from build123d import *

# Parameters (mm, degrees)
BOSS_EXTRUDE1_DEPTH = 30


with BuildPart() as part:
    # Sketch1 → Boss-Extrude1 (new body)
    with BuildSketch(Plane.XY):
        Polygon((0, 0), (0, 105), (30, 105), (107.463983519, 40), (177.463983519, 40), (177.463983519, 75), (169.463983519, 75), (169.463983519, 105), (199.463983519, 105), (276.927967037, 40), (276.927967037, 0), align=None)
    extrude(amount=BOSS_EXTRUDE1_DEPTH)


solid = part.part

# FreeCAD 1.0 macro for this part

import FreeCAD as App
import Part
import Sketcher
Q = App.Units.Quantity

doc = App.newDocument("Part")
params = doc.addObject("Spreadsheet::Sheet", "Params")
for row, (alias, value) in enumerate([
    ("sketch1_width", "30 mm"),
    ("sketch1_width2", "8 mm"),
    ("sketch1_width3", "70 mm"),
    ("sketch1_height", "105 mm"),
    ("sketch1_height2", "40 mm"),
    ("pad1_length", "30 mm"),
], start=1):
    params.set(f"A{row}", alias)
    params.set(f"B{row}", "=" + value)
    params.setAlias(f"B{row}", alias)

body = doc.addObject("PartDesign::Body", "Body")

# Sketch on XY plane
sketch1 = body.newObject("Sketcher::SketchObject", "Sketch")
sketch1.AttachmentSupport = (doc.getObject("XY_Plane"), [""])
sketch1.MapMode = "FlatFace"
sketch1.addGeometry([
    Part.LineSegment(App.Vector(0, 105, 0), App.Vector(0, 0, 0)),  # 0
    Part.LineSegment(App.Vector(0, 0, 0), App.Vector(277, 0, 0)),  # 1
    Part.LineSegment(App.Vector(277, 0, 0), App.Vector(277, 40, 0)),  # 2
    Part.LineSegment(App.Vector(277, 40, 0), App.Vector(199, 105, 0)),  # 3
    Part.LineSegment(App.Vector(199, 105, 0), App.Vector(169, 105, 0)),  # 4
    Part.LineSegment(App.Vector(169, 105, 0), App.Vector(169, 75, 0)),  # 5
    Part.LineSegment(App.Vector(169, 75, 0), App.Vector(177, 75, 0)),  # 6
    Part.LineSegment(App.Vector(177, 75, 0), App.Vector(177, 40, 0)),  # 7
    Part.LineSegment(App.Vector(177, 40, 0), App.Vector(107, 40, 0)),  # 8
    Part.LineSegment(App.Vector(107, 40, 0), App.Vector(30, 105, 0)),  # 9
    Part.LineSegment(App.Vector(30, 105, 0), App.Vector(0, 105, 0)),  # 10
], False)
sketch1.addConstraint([
    Sketcher.Constraint("Coincident", 0, 2, 1, 1),
    Sketcher.Constraint("Coincident", 1, 2, 2, 1),
    Sketcher.Constraint("Coincident", 2, 2, 3, 1),
    Sketcher.Constraint("Coincident", 3, 2, 4, 1),
    Sketcher.Constraint("Coincident", 4, 2, 5, 1),
    Sketcher.Constraint("Coincident", 5, 2, 6, 1),
    Sketcher.Constraint("Coincident", 6, 2, 7, 1),
    Sketcher.Constraint("Coincident", 7, 2, 8, 1),
    Sketcher.Constraint("Coincident", 8, 2, 9, 1),
    Sketcher.Constraint("Coincident", 9, 2, 10, 1),
    Sketcher.Constraint("Coincident", 10, 2, 0, 1),
    Sketcher.Constraint("Vertical", 0),
    Sketcher.Constraint("Horizontal", 1),
    Sketcher.Constraint("Vertical", 2),
    Sketcher.Constraint("Horizontal", 4),
    Sketcher.Constraint("Vertical", 5),
    Sketcher.Constraint("Horizontal", 6),
    Sketcher.Constraint("Vertical", 7),
    Sketcher.Constraint("Horizontal", 8),
    Sketcher.Constraint("Horizontal", 10),
    Sketcher.Constraint("Coincident", 0, 2, -1, 1),
    Sketcher.Constraint("Parallel", 3, 9),
    Sketcher.Constraint("Horizontal", 2, 2, 7, 2),
    Sketcher.Constraint("Horizontal", 4, 2, 9, 2),
    Sketcher.Constraint("Equal", 4, 10),
    Sketcher.Constraint("Equal", 10, 5),
    Sketcher.Constraint("DistanceX", 4, 2, 4, 1, 30.0),
    Sketcher.Constraint("DistanceX", 6, 1, 6, 2, 8.0),
    Sketcher.Constraint("DistanceX", 8, 2, 8, 1, 70.0),
    Sketcher.Constraint("DistanceY", 0, 2, 0, 1, 105.0),
    Sketcher.Constraint("DistanceY", 2, 1, 2, 2, 40.0),
    Sketcher.Constraint("Angle", 3, Q("140 deg")),
])
sketch1.setExpression("Constraints[26]", "Params.sketch1_width")
sketch1.setExpression("Constraints[27]", "Params.sketch1_width2")
sketch1.setExpression("Constraints[28]", "Params.sketch1_width3")
sketch1.setExpression("Constraints[29]", "Params.sketch1_height")
sketch1.setExpression("Constraints[30]", "Params.sketch1_height2")
pad1 = body.newObject("PartDesign::Pad", "Pad")
pad1.Profile = sketch1
pad1.setExpression("Length", "Params.pad1_length")

doc.recompute()
